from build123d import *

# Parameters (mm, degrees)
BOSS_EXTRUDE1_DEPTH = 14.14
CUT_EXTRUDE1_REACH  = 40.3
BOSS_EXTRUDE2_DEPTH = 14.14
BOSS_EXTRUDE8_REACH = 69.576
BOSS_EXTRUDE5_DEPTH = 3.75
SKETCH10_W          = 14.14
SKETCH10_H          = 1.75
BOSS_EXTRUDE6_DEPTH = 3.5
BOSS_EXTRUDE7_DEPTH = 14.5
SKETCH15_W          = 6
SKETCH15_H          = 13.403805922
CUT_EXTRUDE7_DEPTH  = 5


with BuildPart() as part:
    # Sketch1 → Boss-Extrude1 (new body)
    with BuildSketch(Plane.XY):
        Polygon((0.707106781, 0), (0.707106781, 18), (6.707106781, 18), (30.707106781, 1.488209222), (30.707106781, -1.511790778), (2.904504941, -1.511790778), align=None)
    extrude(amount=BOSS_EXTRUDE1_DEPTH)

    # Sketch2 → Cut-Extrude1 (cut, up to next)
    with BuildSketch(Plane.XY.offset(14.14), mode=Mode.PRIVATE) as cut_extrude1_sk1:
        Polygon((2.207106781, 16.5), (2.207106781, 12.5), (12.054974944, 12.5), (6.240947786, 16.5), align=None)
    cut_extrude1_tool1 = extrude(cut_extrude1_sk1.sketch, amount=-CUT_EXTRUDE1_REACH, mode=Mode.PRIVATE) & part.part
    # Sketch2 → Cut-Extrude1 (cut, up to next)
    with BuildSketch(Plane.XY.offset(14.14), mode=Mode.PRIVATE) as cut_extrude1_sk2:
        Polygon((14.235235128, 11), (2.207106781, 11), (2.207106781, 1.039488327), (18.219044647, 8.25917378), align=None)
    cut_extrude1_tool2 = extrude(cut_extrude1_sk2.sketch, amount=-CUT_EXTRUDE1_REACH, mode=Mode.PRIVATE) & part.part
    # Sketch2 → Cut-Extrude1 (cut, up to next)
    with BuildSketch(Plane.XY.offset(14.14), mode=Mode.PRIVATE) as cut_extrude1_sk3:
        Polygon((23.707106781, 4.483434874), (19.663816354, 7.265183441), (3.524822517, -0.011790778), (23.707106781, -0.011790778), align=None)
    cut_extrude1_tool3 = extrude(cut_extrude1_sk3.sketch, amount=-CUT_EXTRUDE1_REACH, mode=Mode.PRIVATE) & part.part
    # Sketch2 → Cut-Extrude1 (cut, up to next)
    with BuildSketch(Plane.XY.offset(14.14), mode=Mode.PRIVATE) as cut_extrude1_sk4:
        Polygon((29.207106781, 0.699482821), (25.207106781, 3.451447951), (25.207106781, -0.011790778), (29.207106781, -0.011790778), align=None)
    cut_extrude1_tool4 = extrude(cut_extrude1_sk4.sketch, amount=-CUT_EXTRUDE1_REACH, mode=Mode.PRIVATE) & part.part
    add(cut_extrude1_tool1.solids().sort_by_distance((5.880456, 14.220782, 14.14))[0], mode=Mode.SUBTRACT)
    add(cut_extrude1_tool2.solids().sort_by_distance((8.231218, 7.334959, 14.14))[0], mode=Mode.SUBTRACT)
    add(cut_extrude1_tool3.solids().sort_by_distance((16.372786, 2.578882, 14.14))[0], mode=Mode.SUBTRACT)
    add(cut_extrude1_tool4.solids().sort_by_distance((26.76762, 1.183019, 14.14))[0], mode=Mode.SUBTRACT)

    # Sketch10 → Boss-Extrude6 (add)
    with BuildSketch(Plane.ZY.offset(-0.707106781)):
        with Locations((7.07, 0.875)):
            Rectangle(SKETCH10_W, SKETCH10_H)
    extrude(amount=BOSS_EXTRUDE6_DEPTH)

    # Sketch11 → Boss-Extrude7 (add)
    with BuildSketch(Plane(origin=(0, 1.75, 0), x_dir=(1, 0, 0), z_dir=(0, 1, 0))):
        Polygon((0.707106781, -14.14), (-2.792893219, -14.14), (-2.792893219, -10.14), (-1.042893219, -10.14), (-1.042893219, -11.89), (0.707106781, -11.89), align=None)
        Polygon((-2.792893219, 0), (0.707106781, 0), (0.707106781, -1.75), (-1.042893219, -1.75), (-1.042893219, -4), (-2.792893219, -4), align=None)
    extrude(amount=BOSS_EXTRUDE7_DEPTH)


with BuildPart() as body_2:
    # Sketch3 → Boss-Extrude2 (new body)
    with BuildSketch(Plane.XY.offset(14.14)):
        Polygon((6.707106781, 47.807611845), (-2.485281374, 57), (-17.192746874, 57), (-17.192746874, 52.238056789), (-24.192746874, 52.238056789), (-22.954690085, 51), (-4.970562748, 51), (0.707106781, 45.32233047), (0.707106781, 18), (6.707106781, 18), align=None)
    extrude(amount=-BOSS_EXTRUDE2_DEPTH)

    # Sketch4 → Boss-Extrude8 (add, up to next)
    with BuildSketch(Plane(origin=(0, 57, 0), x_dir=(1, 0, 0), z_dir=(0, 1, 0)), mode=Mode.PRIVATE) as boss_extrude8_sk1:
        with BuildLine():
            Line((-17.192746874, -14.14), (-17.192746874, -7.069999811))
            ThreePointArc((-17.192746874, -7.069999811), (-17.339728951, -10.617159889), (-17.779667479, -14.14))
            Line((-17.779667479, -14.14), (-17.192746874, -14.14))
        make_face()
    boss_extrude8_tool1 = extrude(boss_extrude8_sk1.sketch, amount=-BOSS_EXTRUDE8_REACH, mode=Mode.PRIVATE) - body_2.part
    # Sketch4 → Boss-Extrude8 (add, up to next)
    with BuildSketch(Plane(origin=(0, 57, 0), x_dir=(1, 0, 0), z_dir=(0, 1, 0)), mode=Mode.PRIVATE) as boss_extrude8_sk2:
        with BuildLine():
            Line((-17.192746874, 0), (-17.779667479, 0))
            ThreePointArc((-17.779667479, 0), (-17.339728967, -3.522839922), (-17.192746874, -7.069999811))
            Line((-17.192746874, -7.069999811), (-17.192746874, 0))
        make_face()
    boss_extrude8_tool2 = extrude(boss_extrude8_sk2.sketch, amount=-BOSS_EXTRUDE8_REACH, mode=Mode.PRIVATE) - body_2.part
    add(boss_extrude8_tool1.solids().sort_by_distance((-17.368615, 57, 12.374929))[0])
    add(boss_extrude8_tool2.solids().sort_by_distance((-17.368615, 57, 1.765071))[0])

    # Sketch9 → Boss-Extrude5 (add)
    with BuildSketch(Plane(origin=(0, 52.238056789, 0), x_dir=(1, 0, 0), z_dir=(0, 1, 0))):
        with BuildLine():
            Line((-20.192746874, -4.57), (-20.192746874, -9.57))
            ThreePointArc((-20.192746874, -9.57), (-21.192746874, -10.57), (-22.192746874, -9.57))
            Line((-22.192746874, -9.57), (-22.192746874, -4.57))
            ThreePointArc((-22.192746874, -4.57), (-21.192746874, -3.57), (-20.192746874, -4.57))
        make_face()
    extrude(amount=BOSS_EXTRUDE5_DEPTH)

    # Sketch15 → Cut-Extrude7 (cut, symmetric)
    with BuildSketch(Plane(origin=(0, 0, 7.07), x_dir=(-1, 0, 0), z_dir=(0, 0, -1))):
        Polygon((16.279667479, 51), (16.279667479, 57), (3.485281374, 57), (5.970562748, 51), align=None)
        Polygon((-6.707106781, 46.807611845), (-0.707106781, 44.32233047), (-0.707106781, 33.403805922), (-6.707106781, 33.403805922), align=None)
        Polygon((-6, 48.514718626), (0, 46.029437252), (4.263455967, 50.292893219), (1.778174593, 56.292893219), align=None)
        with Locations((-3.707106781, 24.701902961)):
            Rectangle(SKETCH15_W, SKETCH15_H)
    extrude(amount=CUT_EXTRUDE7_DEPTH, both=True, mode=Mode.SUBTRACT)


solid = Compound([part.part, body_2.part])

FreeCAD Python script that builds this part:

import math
import FreeCAD as App
import Part
import Sketcher

V = App.Vector
Q = App.Units.Quantity

doc = App.newDocument("Part")
body = doc.addObject("PartDesign::Body", "Body")

# Sketch on XY plane
sketch1 = body.newObject("Sketcher::SketchObject", "Sketch")
sketch1.AttachmentSupport = (doc.getObject("XY_Plane"), [""])
sketch1.MapMode = "FlatFace"
sketch1.addGeometry([
    Part.LineSegment(V(0.7, 18, 0), V(0.7, 0, 0)),  # 0
    Part.LineSegment(V(0.7, 0, 0), V(2.9, -1.5, 0)),  # 1
    Part.LineSegment(V(2.9, -1.5, 0), V(30.7, -1.5, 0)),  # 2
    Part.LineSegment(V(30.7, -1.5, 0), V(30.7, 1.5, 0)),  # 3
    Part.LineSegment(V(30.7, 1.5, 0), V(6.7, 18, 0)),  # 4
    Part.LineSegment(V(6.7, 18, 0), V(0.7, 18, 0)),  # 5
], False)
sketch1.addConstraint([
    Sketcher.Constraint("Coincident", 0, 2, 1, 1),
    Sketcher.Constraint("Coincident", 1, 2, 2, 1),
    Sketcher.Constraint("Coincident", 2, 2, 3, 1),
    Sketcher.Constraint("Coincident", 3, 2, 4, 1),
    Sketcher.Constraint("Coincident", 4, 2, 5, 1),
    Sketcher.Constraint("Coincident", 5, 2, 0, 1),
    Sketcher.Constraint("Vertical", 0),
    Sketcher.Constraint("Horizontal", 2),
    Sketcher.Constraint("Vertical", 3),
    Sketcher.Constraint("Horizontal", 5),
    Sketcher.Constraint("PointOnObject", 0, 2, -1),
    Sketcher.Constraint("Parallel", 1, 4),
    Sketcher.Constraint("DistanceX", 5, 2, 5, 1, 6.0),
    Sketcher.Constraint("DistanceY", 0, 2, 0, 1, 18.0),
    Sketcher.Constraint("DistanceY", 3, 1, 3, 2, 3.0),
    Sketcher.Constraint("DistanceX", 0, 2, 2, 2, 30.0),
    Sketcher.Constraint("DistanceX", 2, 1, 2, 2, 27.802602),
    Sketcher.Constraint("DistanceX", -1, 1, 0, 2, 0.707107),
])
pad1 = body.newObject("PartDesign::Pad", "Pad")
pad1.Profile = sketch1
pad1.Length = 14.14

# Sketch on XY plane
sketch2 = body.newObject("Sketcher::SketchObject", "Sketch001")
sketch2.AttachmentSupport = (doc.getObject("XY_Plane"), [""])
sketch2.MapMode = "FlatFace"
sketch2.AttachmentOffset = App.Placement(V(0, 0, 14.14), App.Rotation())
sketch2.addGeometry([
    Part.LineSegment(V(2.2, 16.5, 0), V(2.2, 12.5, 0)),
    Part.LineSegment(V(2.2, 12.5, 0), V(12.1, 12.5, 0)),
    Part.LineSegment(V(12.1, 12.5, 0), V(6.2, 16.5, 0)),
    Part.LineSegment(V(6.2, 16.5, 0), V(2.2, 16.5, 0)),
], False)
sketch2.addConstraint([
    Sketcher.Constraint("Coincident", 0, 2, 1, 1),
    Sketcher.Constraint("Coincident", 1, 2, 2, 1),
    Sketcher.Constraint("Coincident", 2, 2, 3, 1),
    Sketcher.Constraint("Coincident", 3, 2, 0, 1),
    Sketcher.Constraint("Vertical", 0),
    Sketcher.Constraint("Horizontal", 1),
    Sketcher.Constraint("Horizontal", 3),
    Sketcher.Constraint("DistanceY", 0, 2, 0, 1, 4.0),
    Sketcher.Constraint("DistanceY", -1, 1, 0, 2, 12.5),
    Sketcher.Constraint("DistanceX", 1, 1, 1, 2, 9.847868),
    Sketcher.Constraint("DistanceX", 3, 2, 3, 1, 4.033841),
    Sketcher.Constraint("DistanceX", -1, 1, 0, 2, 2.207107),
])
pocket1 = body.newObject("PartDesign::Pocket", "Pocket")
pocket1.Profile = sketch2
pocket1.Type = "UpToFirst"

# Sketch on XY plane
sketch3 = body.newObject("Sketcher::SketchObject", "Sketch002")
sketch3.AttachmentSupport = (doc.getObject("XY_Plane"), [""])
sketch3.MapMode = "FlatFace"
sketch3.AttachmentOffset = App.Placement(V(0, 0, 14.14), App.Rotation())
sketch3.addGeometry([
    Part.LineSegment(V(14.2, 11, 0), V(2.2, 11, 0)),
    Part.LineSegment(V(2.2, 11, 0), V(2.2, 1, 0)),
    Part.LineSegment(V(2.2, 1, 0), V(18.2, 8.3, 0)),
    Part.LineSegment(V(18.2, 8.3, 0), V(14.2, 11, 0)),
], False)
sketch3.addConstraint([
    Sketcher.Constraint("Coincident", 0, 2, 1, 1),
    Sketcher.Constraint("Coincident", 1, 2, 2, 1),
    Sketcher.Constraint("Coincident", 2, 2, 3, 1),
    Sketcher.Constraint("Coincident", 3, 2, 0, 1),
    Sketcher.Constraint("Horizontal", 0),
    Sketcher.Constraint("Vertical", 1),
    Sketcher.Constraint("DistanceY", -1, 1, 0, 2, 11.0),
    Sketcher.Constraint("DistanceX", 0, 2, 0, 1, 12.028128),
    Sketcher.Constraint("DistanceY", 1, 2, 1, 1, 9.960512),
    Sketcher.Constraint("Distance", 2, 17.564339),
    Sketcher.Constraint("DistanceX", 3, 2, 2, 2, 3.98381),
    Sketcher.Constraint("DistanceX", -1, 1, 0, 2, 2.207107),
])
pocket2 = body.newObject("PartDesign::Pocket", "Pocket001")
pocket2.Profile = sketch3
pocket2.Type = "UpToFirst"

# Sketch on XY plane
sketch4 = body.newObject("Sketcher::SketchObject", "Sketch003")
sketch4.AttachmentSupport = (doc.getObject("XY_Plane"), [""])
sketch4.MapMode = "FlatFace"
sketch4.AttachmentOffset = App.Placement(V(0, 0, 14.14), App.Rotation())
sketch4.addGeometry([
    Part.LineSegment(V(23.7, 4.5, 0), V(19.7, 7.3, 0)),
    Part.LineSegment(V(19.7, 7.3, 0), V(3.5, 0, 0)),
    Part.LineSegment(V(3.5, 0, 0), V(23.7, 0, 0)),
    Part.LineSegment(V(23.7, 0, 0), V(23.7, 4.5, 0)),
], False)
sketch4.addConstraint([
    Sketcher.Constraint("Coincident", 0, 2, 1, 1),
    Sketcher.Constraint("Coincident", 1, 2, 2, 1),
    Sketcher.Constraint("Coincident", 2, 2, 3, 1),
    Sketcher.Constraint("Coincident", 3, 2, 0, 1),
    Sketcher.Constraint("Horizontal", 2),
    Sketcher.Constraint("Vertical", 3),
    Sketcher.Constraint("Distance", 0, 4.907782),
    Sketcher.Constraint("DistanceX", 2, 1, 2, 2, 20.182284),
    Sketcher.Constraint("DistanceY", 3, 1, 3, 2, 4.495226),
    Sketcher.Constraint("DistanceY", 1, 2, -1, 1, 0.011791),
    Sketcher.Constraint("DistanceX", 0, 2, 2, 2, 4.04329),
    Sketcher.Constraint("DistanceX", -1, 1, 0, 2, 19.663816),
])
pocket3 = body.newObject("PartDesign::Pocket", "Pocket002")
pocket3.Profile = sketch4
pocket3.Type = "UpToFirst"

# Sketch on XY plane
sketch5 = body.newObject("Sketcher::SketchObject", "Sketch004")
sketch5.AttachmentSupport = (doc.getObject("XY_Plane"), [""])
sketch5.MapMode = "FlatFace"
sketch5.AttachmentOffset = App.Placement(V(0, 0, 14.14), App.Rotation())
sketch5.addGeometry([
    Part.LineSegment(V(29.2, 0.7, 0), V(25.2, 3.5, 0)),
    Part.LineSegment(V(25.2, 3.5, 0), V(25.2, 0, 0)),
    Part.LineSegment(V(25.2, 0, 0), V(29.2, 0, 0)),
    Part.LineSegment(V(29.2, 0, 0), V(29.2, 0.7, 0)),
], False)
sketch5.addConstraint([
    Sketcher.Constraint("Coincident", 0, 2, 1, 1),
    Sketcher.Constraint("Coincident", 1, 2, 2, 1),
    Sketcher.Constraint("Coincident", 2, 2, 3, 1),
    Sketcher.Constraint("Coincident", 3, 2, 0, 1),
    Sketcher.Constraint("Vertical", 1),
    Sketcher.Constraint("Horizontal", 2),
    Sketcher.Constraint("Vertical", 3),
    Sketcher.Constraint("DistanceX", 2, 1, 2, 2, 4.0),
    Sketcher.Constraint("DistanceY", 1, 2, 1, 1, 3.463239),
    Sketcher.Constraint("DistanceY", 3, 1, 3, 2, 0.711274),
    Sketcher.Constraint("DistanceY", 1, 2, -1, 1, 0.011791),
    Sketcher.Constraint("DistanceX", -1, 1, 0, 2, 25.207107),
])
pocket4 = body.newObject("PartDesign::Pocket", "Pocket003")
pocket4.Profile = sketch5
pocket4.Type = "UpToFirst"

# Sketch on YZ plane
sketch6 = body.newObject("Sketcher::SketchObject", "Sketch005")
sketch6.AttachmentSupport = (doc.getObject("YZ_Plane"), [""])
sketch6.MapMode = "FlatFace"
sketch6.AttachmentOffset = App.Placement(V(0, 0, 0.707107), App.Rotation())
sketch6.addGeometry([
    Part.LineSegment(V(1.8, 0, 0), V(0, 0, 0)),
    Part.LineSegment(V(0, 0, 0), V(0, 14.1, 0)),
    Part.LineSegment(V(0, 14.1, 0), V(1.8, 14.1, 0)),
    Part.LineSegment(V(1.8, 14.1, 0), V(1.8, 0, 0)),
], False)
sketch6.addConstraint([
    Sketcher.Constraint("Coincident", 0, 2, 1, 1),
    Sketcher.Constraint("Coincident", 1, 2, 2, 1),
    Sketcher.Constraint("Coincident", 2, 2, 3, 1),
    Sketcher.Constraint("Coincident", 3, 2, 0, 1),
    Sketcher.Constraint("Horizontal", 0),
    Sketcher.Constraint("Vertical", 1),
    Sketcher.Constraint("Horizontal", 2),
    Sketcher.Constraint("Vertical", 3),
    Sketcher.Constraint("Coincident", 0, 2, -1, 1),
    Sketcher.Constraint("DistanceX", 0, 2, 0, 1, 1.75),
    Sketcher.Constraint("DistanceY", 1, 1, 1, 2, 14.14),
])
pad2 = body.newObject("PartDesign::Pad", "Pad001")
pad2.Profile = sketch6
pad2.Length = 3.5
pad2.Reversed = True

# Sketch on XZ plane
sketch7 = body.newObject("Sketcher::SketchObject", "Sketch006")
sketch7.AttachmentSupport = (doc.getObject("XZ_Plane"), [""])
sketch7.MapMode = "FlatFace"
sketch7.AttachmentOffset = App.Placement(V(0, 0, -1.75), App.Rotation())
sketch7.addGeometry([
    Part.LineSegment(V(-2.8, 14.1, 0), V(0.7, 14.1, 0)),  # 0
    Part.LineSegment(V(0.7, 14.1, 0), V(0.7, 11.9, 0)),  # 1
    Part.LineSegment(V(0.7, 11.9, 0), V(-1, 11.9, 0)),  # 2
    Part.LineSegment(V(-1, 11.9, 0), V(-1, 10.1, 0)),  # 3
    Part.LineSegment(V(-1, 10.1, 0), V(-2.8, 10.1, 0)),  # 4
    Part.LineSegment(V(-2.8, 10.1, 0), V(-2.8, 14.1, 0)),  # 5
    Part.LineSegment(V(0.7, 0, 0), V(-2.8, 0, 0)),  # 6
    Part.LineSegment(V(-2.8, 0, 0), V(-2.8, 4, 0)),  # 7
    Part.LineSegment(V(-2.8, 4, 0), V(-1, 4, 0)),  # 8
    Part.LineSegment(V(-1, 4, 0), V(-1, 1.8, 0)),  # 9
    Part.LineSegment(V(-1, 1.8, 0), V(0.7, 1.8, 0)),  # 10
    Part.LineSegment(V(0.7, 1.8, 0), V(0.7, 0, 0)),  # 11
], False)
sketch7.addConstraint([
    Sketcher.Constraint("Coincident", 0, 2, 1, 1),
    Sketcher.Constraint("Coincident", 1, 2, 2, 1),
    Sketcher.Constraint("Coincident", 2, 2, 3, 1),
    Sketcher.Constraint("Coincident", 3, 2, 4, 1),
    Sketcher.Constraint("Coincident", 4, 2, 5, 1),
    Sketcher.Constraint("Coincident", 5, 2, 0, 1),
    Sketcher.Constraint("Coincident", 6, 2, 7, 1),
    Sketcher.Constraint("Coincident", 7, 2, 8, 1),
    Sketcher.Constraint("Coincident", 8, 2, 9, 1),
    Sketcher.Constraint("Coincident", 9, 2, 10, 1),
    Sketcher.Constraint("Coincident", 10, 2, 11, 1),
    Sketcher.Constraint("Coincident", 11, 2, 6, 1),
    Sketcher.Constraint("Horizontal", 0),
    Sketcher.Constraint("Vertical", 1),
    Sketcher.Constraint("Horizontal", 2),
    Sketcher.Constraint("Vertical", 3),
    Sketcher.Constraint("Horizontal", 4),
    Sketcher.Constraint("Vertical", 5),
    Sketcher.Constraint("Horizontal", 6),
    Sketcher.Constraint("Vertical", 7),
    Sketcher.Constraint("Horizontal", 8),
    Sketcher.Constraint("Vertical", 9),
    Sketcher.Constraint("Horizontal", 10),
    Sketcher.Constraint("Vertical", 11),
    Sketcher.Constraint("PointOnObject", 6, 2, -1),
    Sketcher.Constraint("Vertical", 5, 2, 6, 2),
    Sketcher.Constraint("Vertical", 3, 2, 8, 2),
    Sketcher.Constraint("Vertical", 1, 2, 10, 2),
    Sketcher.Constraint("Equal", 2, 4),
    Sketcher.Constraint("Equal", 10, 3),
    Sketcher.Constraint("Equal", 5, 7),
    Sketcher.Constraint("Equal", 1, 9),
    Sketcher.Constraint("DistanceY", 5, 1, 5, 2, 4.0),
    Sketcher.Constraint("DistanceX", 0, 1, 0, 2, 3.5),
    Sketcher.Constraint("DistanceY", -1, 1, 0, 2, 14.14),
    Sketcher.Constraint("DistanceX", -1, 1, 0, 2, 0.707107),
])
pad3 = body.newObject("PartDesign::Pad", "Pad002")
pad3.Profile = sketch7
pad3.Length = 14.5
pad3.Reversed = True
body2 = doc.addObject("PartDesign::Body", "Body001")

# Sketch on XY plane
sketch8 = body2.newObject("Sketcher::SketchObject", "Sketch007")
sketch8.AttachmentSupport = (doc.getObject("XY_Plane001"), [""])
sketch8.MapMode = "FlatFace"
sketch8.AttachmentOffset = App.Placement(V(0, 0, 14.14), App.Rotation())
sketch8.addGeometry([
    Part.LineSegment(V(6.7, 47.8, 0), V(-2.5, 57, 0)),  # 0
    Part.LineSegment(V(-2.5, 57, 0), V(-17.2, 57, 0)),  # 1
    Part.LineSegment(V(-17.2, 57, 0), V(-17.2, 52.2, 0)),  # 2
    Part.LineSegment(V(-17.2, 52.2, 0), V(-24.2, 52.2, 0)),  # 3
    Part.LineSegment(V(-24.2, 52.2, 0), V(-23, 51, 0)),  # 4
    Part.LineSegment(V(-23, 51, 0), V(-5, 51, 0)),  # 5
    Part.LineSegment(V(-5, 51, 0), V(0.7, 45.3, 0)),  # 6
    Part.LineSegment(V(0.7, 45.3, 0), V(0.7, 18, 0)),  # 7
    Part.LineSegment(V(0.7, 18, 0), V(6.7, 18, 0)),  # 8
    Part.LineSegment(V(6.7, 18, 0), V(6.7, 47.8, 0)),  # 9
], False)
sketch8.addConstraint([
    Sketcher.Constraint("Coincident", 0, 2, 1, 1),
    Sketcher.Constraint("Coincident", 1, 2, 2, 1),
    Sketcher.Constraint("Coincident", 2, 2, 3, 1),
    Sketcher.Constraint("Coincident", 3, 2, 4, 1),
    Sketcher.Constraint("Coincident", 4, 2, 5, 1),
    Sketcher.Constraint("Coincident", 5, 2, 6, 1),
    Sketcher.Constraint("Coincident", 6, 2, 7, 1),
    Sketcher.Constraint("Coincident", 7, 2, 8, 1),
    Sketcher.Constraint("Coincident", 8, 2, 9, 1),
    Sketcher.Constraint("Coincident", 9, 2, 0, 1),
    Sketcher.Constraint("Horizontal", 1),
    Sketcher.Constraint("Vertical", 2),
    Sketcher.Constraint("Horizontal", 3),
    Sketcher.Constraint("Horizontal", 5),
    Sketcher.Constraint("Vertical", 7),
    Sketcher.Constraint("Horizontal", 8),
    Sketcher.Constraint("Vertical", 9),
    Sketcher.Constraint("Parallel", 0, 4),
    Sketcher.Constraint("Parallel", 4, 6),
    Sketcher.Constraint("DistanceX", 3, 2, 3, 1, 7.0),
    Sketcher.Constraint("DistanceX", 8, 1, 8, 2, 6.0),
    Sketcher.Constraint("Angle", 0, Q("135 deg")),
    Sketcher.Constraint("Distance", 0, 13.0),
    Sketcher.Constraint("DistanceY", -1, 1, 0, 2, 57.0),
    Sketcher.Constraint("DistanceY", -1, 1, 4, 2, 51.0),
    Sketcher.Constraint("DistanceY", -1, 1, 7, 2, 18.0),
    Sketcher.Constraint("DistanceY", 7, 2, 7, 1, 27.32233),
    Sketcher.Constraint("DistanceX", 1, 2, 1, 1, 14.707466),
    Sketcher.Constraint("DistanceX", 5, 1, 5, 2, 17.984127),
    Sketcher.Constraint("DistanceX", 0, 2, -1, 1, 2.485281),
])
pad4 = body2.newObject("PartDesign::Pad", "Pad003")
pad4.Profile = sketch8
pad4.Length = 14.14
pad4.Reversed = True

# Sketch on XZ plane
sketch9 = body2.newObject("Sketcher::SketchObject", "Sketch008")
sketch9.AttachmentSupport = (doc.getObject("XZ_Plane001"), [""])
sketch9.MapMode = "FlatFace"
sketch9.AttachmentOffset = App.Placement(V(0, 0, -57), App.Rotation())
sketch9.addGeometry([
    Part.LineSegment(V(-17.2, 14.1, 0), V(-17.2, 7.1, 0)),
    Part.ArcOfCircle(Part.Circle(V(-60.1, 7.1, 0), V(0, 0, 1), 42.9), math.radians(0), math.radians(9.49)),
    Part.LineSegment(V(-17.8, 14.1, 0), V(-17.2, 14.1, 0)),
], False)
sketch9.addConstraint([
    Sketcher.Constraint("Tangent", 0, 2, 1, 1),
    Sketcher.Constraint("Coincident", 1, 2, 2, 1),
    Sketcher.Constraint("Coincident", 2, 2, 0, 1),
    Sketcher.Constraint("Vertical", 0),
    Sketcher.Constraint("Horizontal", 2),
    Sketcher.Constraint("DistanceY", 0, 2, 0, 1, 7.07),
    Sketcher.Constraint("DistanceY", -1, 1, 1, 3, 7.07),
    Sketcher.Constraint("Radius", 1, 42.875796),
    Sketcher.Constraint("DistanceX", 1, 3, -1, 1, 60.068542),
])
pad5 = body2.newObject("PartDesign::Pad", "Pad004")
pad5.Profile = sketch9
pad5.Type = "UpToFirst"

# Sketch on XZ plane
sketch10 = body2.newObject("Sketcher::SketchObject", "Sketch009")
sketch10.AttachmentSupport = (doc.getObject("XZ_Plane001"), [""])
sketch10.MapMode = "FlatFace"
sketch10.AttachmentOffset = App.Placement(V(0, 0, -57), App.Rotation())
sketch10.addGeometry([
    Part.LineSegment(V(-17.2, 0, 0), V(-17.8, 0, 0)),
    Part.ArcOfCircle(Part.Circle(V(-60.1, 7.1, 0), V(0, 0, 1), 42.9), math.radians(-9.49), math.radians(0)),
    Part.LineSegment(V(-17.2, 7.1, 0), V(-17.2, 0, 0)),
], False)
sketch10.addConstraint([
    Sketcher.Constraint("Coincident", 0, 2, 1, 1),
    Sketcher.Constraint("Tangent", 1, 2, 2, 1),
    Sketcher.Constraint("Coincident", 2, 2, 0, 1),
    Sketcher.Constraint("Horizontal", 0),
    Sketcher.Constraint("Vertical", 2),
    Sketcher.Constraint("PointOnObject", 0, 2, -1),
    Sketcher.Constraint("DistanceY", 2, 2, 2, 1, 7.07),
    Sketcher.Constraint("Radius", 1, 42.875796),
    Sketcher.Constraint("DistanceX", 1, 3, -1, 1, 60.068542),
])
pad6 = body2.newObject("PartDesign::Pad", "Pad005")
pad6.Profile = sketch10
pad6.Type = "UpToFirst"

# Sketch on XZ plane
sketch11 = body2.newObject("Sketcher::SketchObject", "Sketch010")
sketch11.AttachmentSupport = (doc.getObject("XZ_Plane001"), [""])
sketch11.MapMode = "FlatFace"
sketch11.AttachmentOffset = App.Placement(V(0, 0, -52.238057), App.Rotation())
sketch11.addGeometry([
    Part.LineSegment(V(-20.2, 9.6, 0), V(-20.2, 4.6, 0)),
    Part.ArcOfCircle(Part.Circle(V(-21.2, 4.6, 0), V(0, 0, 1), 1), math.radians(180), math.radians(360)),
    Part.LineSegment(V(-22.2, 4.6, 0), V(-22.2, 9.6, 0)),
    Part.ArcOfCircle(Part.Circle(V(-21.2, 9.6, 0), V(0, 0, 1), 1), math.radians(0), math.radians(180)),
], False)
sketch11.addConstraint([
    Sketcher.Constraint("Tangent", 0, 2, 1, 2),
    Sketcher.Constraint("Tangent", 1, 1, 2, 1),
    Sketcher.Constraint("Tangent", 2, 2, 3, 2),
    Sketcher.Constraint("Tangent", 3, 1, 0, 1),
    Sketcher.Constraint("Vertical", 0),
    Sketcher.Constraint("Vertical", 2),
    Sketcher.Constraint("Radius", 1, 1.0),
    Sketcher.Constraint("DistanceY", 0, 2, 0, 1, 5.0),
    Sketcher.Constraint("DistanceY", -1, 1, 1, 3, 4.57),
    Sketcher.Constraint("DistanceX", 1, 3, -1, 1, 21.192747),
])
pad7 = body2.newObject("PartDesign::Pad", "Pad006")
pad7.Profile = sketch11
pad7.Length = 3.75
pad7.Reversed = True

# Sketch on XY plane
sketch12 = body2.newObject("Sketcher::SketchObject", "Sketch011")
sketch12.AttachmentSupport = (doc.getObject("XY_Plane001"), [""])
sketch12.MapMode = "FlatFace"
sketch12.AttachmentOffset = App.Placement(V(0, 0, 7.07), App.Rotation())
sketch12.addGeometry([
    Part.LineSegment(V(-16, 51, 0), V(-16, 57, 0)),  # 0
    Part.LineSegment(V(-16, 57, 0), V(-3, 57, 0)),  # 1
    Part.LineSegment(V(-3, 57, 0), V(-6, 51, 0)),  # 2
    Part.LineSegment(V(-6, 51, 0), V(-16, 51, 0)),  # 3
    Part.LineSegment(V(1, 44, 0), V(7, 47, 0)),  # 4
    Part.LineSegment(V(7, 47, 0), V(7, 33, 0)),  # 5
    Part.LineSegment(V(7, 33, 0), V(1, 33, 0)),  # 6
    Part.LineSegment(V(1, 33, 0), V(1, 44, 0)),  # 7
    Part.LineSegment(V(6, 49, 0), V(0, 46, 0)),  # 8
    Part.LineSegment(V(0, 46, 0), V(-4, 50, 0)),  # 9
    Part.LineSegment(V(-4, 50, 0), V(-2, 56, 0)),  # 10
    Part.LineSegment(V(-2, 56, 0), V(6, 49, 0)),  # 11
    Part.LineSegment(V(7, 31, 0), V(7, 18, 0)),  # 12
    Part.LineSegment(V(7, 18, 0), V(1, 18, 0)),  # 13
    Part.LineSegment(V(1, 18, 0), V(1, 31, 0)),  # 14
    Part.LineSegment(V(1, 31, 0), V(7, 31, 0)),  # 15
], False)
sketch12.addConstraint([
    Sketcher.Constraint("Coincident", 0, 2, 1, 1),
    Sketcher.Constraint("Coincident", 1, 2, 2, 1),
    Sketcher.Constraint("Coincident", 2, 2, 3, 1),
    Sketcher.Constraint("Coincident", 3, 2, 0, 1),
    Sketcher.Constraint("Coincident", 4, 2, 5, 1),
    Sketcher.Constraint("Coincident", 5, 2, 6, 1),
    Sketcher.Constraint("Coincident", 6, 2, 7, 1),
    Sketcher.Constraint("Coincident", 7, 2, 4, 1),
    Sketcher.Constraint("Coincident", 8, 2, 9, 1),
    Sketcher.Constraint("Coincident", 9, 2, 10, 1),
    Sketcher.Constraint("Coincident", 10, 2, 11, 1),
    Sketcher.Constraint("Coincident", 11, 2, 8, 1),
    Sketcher.Constraint("Coincident", 12, 2, 13, 1),
    Sketcher.Constraint("Coincident", 13, 2, 14, 1),
    Sketcher.Constraint("Coincident", 14, 2, 15, 1),
    Sketcher.Constraint("Coincident", 15, 2, 12, 1),
    Sketcher.Constraint("Vertical", 0),
    Sketcher.Constraint("Horizontal", 1),
    Sketcher.Constraint("Horizontal", 3),
    Sketcher.Constraint("Vertical", 5),
    Sketcher.Constraint("Horizontal", 6),
    Sketcher.Constraint("Vertical", 7),
    Sketcher.Constraint("Vertical", 12),
    Sketcher.Constraint("Horizontal", 13),
    Sketcher.Constraint("Vertical", 14),
    Sketcher.Constraint("Horizontal", 15),
    Sketcher.Constraint("PointOnObject", 8, 2, -2),
    Sketcher.Constraint("Parallel", 4, 8),
    Sketcher.Constraint("Parallel", 2, 10),
    Sketcher.Constraint("Parallel", 9, 11),
    Sketcher.Constraint("Vertical", 5, 2, 12, 2),
    Sketcher.Constraint("Vertical", 7, 2, 13, 2),
    Sketcher.Constraint("Equal", 15, 0),
    Sketcher.Constraint("Equal", 5, 12),
    Sketcher.Constraint("Equal", 2, 4),
    Sketcher.Constraint("Equal", 4, 8),
    Sketcher.Constraint("Equal", 8, 10),
    Sketcher.Constraint("DistanceX", 6, 2, 6, 1, 6.0),
    Sketcher.Constraint("Distance", 11, 11.0),
    Sketcher.Constraint("DistanceY", -1, 1, 0, 2, 57.0),
    Sketcher.Constraint("DistanceY", -1, 1, 12, 2, 18.0),
    Sketcher.Constraint("Angle", 2, Q("-112.5 deg")),
    Sketcher.Constraint("DistanceY", 14, 2, 6, 2, 2.0),
    Sketcher.Constraint("DistanceX", 1, 1, 1, 2, 12.794386),
    Sketcher.Constraint("DistanceY", 5, 2, 5, 1, 13.403806),
    Sketcher.Constraint("DistanceX", 1, 2, -1, 1, 3.485281),
    Sketcher.Constraint("DistanceY", -1, 1, 11, 2, 48.514719),
    Sketcher.Constraint("DistanceX", 2, 2, 4, 2, 12.67767),
])
pocket5 = body2.newObject("PartDesign::Pocket", "Pocket004")
pocket5.Profile = sketch12
pocket5.Length = 10
pocket5.Midplane = True

doc.recompute()
